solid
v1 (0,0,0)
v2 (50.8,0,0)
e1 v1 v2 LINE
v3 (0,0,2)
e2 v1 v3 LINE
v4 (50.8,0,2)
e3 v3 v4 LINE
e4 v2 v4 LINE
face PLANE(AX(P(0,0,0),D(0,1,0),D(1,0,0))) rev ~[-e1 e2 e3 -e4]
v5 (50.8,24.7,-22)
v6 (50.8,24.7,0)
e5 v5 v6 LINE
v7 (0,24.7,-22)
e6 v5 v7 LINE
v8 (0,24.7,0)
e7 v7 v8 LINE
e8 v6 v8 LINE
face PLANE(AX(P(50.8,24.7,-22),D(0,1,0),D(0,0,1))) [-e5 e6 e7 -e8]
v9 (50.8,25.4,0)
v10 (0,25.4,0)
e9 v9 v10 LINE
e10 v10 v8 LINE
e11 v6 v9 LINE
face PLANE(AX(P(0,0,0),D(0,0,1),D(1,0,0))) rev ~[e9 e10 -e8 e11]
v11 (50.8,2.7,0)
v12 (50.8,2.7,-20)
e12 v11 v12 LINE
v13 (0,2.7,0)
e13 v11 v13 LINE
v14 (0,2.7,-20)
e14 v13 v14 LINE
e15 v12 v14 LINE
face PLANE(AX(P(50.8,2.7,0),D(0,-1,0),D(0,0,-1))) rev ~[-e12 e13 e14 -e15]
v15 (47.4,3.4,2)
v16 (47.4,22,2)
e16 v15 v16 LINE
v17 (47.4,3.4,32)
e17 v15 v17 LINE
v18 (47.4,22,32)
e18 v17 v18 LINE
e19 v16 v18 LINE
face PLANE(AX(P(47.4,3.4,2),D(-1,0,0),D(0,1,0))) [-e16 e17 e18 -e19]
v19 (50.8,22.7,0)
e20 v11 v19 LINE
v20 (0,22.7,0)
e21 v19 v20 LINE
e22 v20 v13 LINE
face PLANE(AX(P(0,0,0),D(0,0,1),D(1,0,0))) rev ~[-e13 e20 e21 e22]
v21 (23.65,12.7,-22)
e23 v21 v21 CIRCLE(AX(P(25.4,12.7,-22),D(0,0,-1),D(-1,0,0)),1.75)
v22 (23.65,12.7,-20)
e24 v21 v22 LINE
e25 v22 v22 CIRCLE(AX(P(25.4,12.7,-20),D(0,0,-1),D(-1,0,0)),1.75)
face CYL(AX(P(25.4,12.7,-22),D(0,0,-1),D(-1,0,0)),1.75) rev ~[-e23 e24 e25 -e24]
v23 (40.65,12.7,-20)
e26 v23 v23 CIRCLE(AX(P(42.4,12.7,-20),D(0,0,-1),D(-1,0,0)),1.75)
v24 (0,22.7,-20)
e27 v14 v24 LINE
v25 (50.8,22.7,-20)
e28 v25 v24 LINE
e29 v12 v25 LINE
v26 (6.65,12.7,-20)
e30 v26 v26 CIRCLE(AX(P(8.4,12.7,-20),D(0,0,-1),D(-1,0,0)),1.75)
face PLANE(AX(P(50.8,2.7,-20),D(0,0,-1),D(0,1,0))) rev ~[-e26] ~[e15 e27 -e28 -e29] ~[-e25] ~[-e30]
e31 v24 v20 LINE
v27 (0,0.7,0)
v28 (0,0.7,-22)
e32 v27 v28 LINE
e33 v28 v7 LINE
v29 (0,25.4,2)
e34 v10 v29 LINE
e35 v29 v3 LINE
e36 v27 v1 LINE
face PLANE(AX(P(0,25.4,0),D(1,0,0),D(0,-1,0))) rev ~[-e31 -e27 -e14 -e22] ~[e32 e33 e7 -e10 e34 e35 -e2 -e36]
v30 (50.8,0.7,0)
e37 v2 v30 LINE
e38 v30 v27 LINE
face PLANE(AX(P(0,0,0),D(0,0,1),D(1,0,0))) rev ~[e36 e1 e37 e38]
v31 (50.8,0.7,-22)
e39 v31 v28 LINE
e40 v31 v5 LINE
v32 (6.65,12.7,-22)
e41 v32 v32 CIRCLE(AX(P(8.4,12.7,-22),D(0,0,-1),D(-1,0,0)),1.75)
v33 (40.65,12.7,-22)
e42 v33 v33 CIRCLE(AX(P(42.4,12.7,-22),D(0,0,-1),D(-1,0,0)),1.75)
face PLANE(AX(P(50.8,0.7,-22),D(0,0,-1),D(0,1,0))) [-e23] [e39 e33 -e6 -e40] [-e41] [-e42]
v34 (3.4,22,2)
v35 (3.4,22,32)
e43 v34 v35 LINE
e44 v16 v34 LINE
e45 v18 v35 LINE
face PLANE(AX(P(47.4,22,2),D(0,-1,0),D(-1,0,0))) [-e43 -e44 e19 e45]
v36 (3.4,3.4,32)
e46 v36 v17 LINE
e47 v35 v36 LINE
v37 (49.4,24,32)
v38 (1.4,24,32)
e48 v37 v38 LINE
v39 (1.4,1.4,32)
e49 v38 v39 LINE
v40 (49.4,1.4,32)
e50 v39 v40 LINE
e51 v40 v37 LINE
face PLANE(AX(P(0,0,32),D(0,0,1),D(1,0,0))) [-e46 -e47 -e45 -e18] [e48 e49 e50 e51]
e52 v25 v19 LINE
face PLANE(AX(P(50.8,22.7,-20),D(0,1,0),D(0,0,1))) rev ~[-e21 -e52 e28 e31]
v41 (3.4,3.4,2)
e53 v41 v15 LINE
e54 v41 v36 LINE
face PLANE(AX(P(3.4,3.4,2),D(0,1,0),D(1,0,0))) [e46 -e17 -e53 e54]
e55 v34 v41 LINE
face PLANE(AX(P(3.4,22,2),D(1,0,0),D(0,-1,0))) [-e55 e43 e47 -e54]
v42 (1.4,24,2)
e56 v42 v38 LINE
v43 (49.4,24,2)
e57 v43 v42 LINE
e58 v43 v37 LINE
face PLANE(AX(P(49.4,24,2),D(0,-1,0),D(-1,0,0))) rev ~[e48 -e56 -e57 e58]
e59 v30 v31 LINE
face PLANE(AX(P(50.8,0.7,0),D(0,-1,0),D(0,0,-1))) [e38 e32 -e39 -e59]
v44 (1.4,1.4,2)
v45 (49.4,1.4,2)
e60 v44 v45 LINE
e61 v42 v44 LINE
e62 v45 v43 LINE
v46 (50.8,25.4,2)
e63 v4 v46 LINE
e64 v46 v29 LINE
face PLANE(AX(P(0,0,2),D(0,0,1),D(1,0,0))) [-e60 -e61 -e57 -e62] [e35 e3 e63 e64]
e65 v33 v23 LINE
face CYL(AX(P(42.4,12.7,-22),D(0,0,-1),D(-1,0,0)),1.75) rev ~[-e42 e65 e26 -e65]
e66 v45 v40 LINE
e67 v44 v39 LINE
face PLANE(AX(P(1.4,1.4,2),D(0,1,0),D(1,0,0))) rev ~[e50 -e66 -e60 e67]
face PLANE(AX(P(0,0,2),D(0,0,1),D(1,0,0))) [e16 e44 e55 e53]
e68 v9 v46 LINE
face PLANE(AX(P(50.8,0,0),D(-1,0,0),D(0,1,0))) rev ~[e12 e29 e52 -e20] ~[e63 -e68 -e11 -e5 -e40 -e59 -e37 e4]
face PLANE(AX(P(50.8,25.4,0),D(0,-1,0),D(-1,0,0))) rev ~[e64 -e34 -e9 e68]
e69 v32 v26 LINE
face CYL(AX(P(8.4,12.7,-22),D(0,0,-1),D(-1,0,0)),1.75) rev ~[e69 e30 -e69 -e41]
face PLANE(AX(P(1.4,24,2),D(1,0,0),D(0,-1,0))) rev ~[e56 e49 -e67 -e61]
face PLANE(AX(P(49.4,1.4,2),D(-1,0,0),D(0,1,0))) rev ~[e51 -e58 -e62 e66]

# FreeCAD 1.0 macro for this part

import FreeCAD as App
import Part
import Sketcher
from FreeCAD import Vector
Q = App.Units.Quantity


def add_polygon(sketch, points):
    """Adds a closed chain of lines whose ends are joined by coincident constraints."""
    first, n = sketch.GeometryCount, len(points)
    for a, b in zip(points, points[1:] + points[:1]):
        sketch.addGeometry(Part.LineSegment(App.Vector(*a, 0), App.Vector(*b, 0)), False)
    for i in range(n):
        sketch.addConstraint(Sketcher.Constraint("Coincident", first + i, 2, first + (i + 1) % n, 1))

doc = App.newDocument("Part")
body = doc.addObject("PartDesign::Body", "Body")

sketch1 = body.newObject("Sketcher::SketchObject", "Sketch")
sketch1.AttachmentSupport = (doc.getObject("XY_Plane"), [""])
sketch1.MapMode = "FlatFace"
add_polygon(sketch1, [(0, 25.4), (0, 0), (50.8, 0), (50.8, 25.4)])
sketch1.addConstraint(Sketcher.Constraint("Vertical", 0))
sketch1.addConstraint(Sketcher.Constraint("Horizontal", 1))
sketch1.addConstraint(Sketcher.Constraint("Vertical", 2))
sketch1.addConstraint(Sketcher.Constraint("Horizontal", 3))
sketch1.addConstraint(Sketcher.Constraint("Coincident", 0, 2, -1, 1))
sketch1.addConstraint(Sketcher.Constraint("DistanceX", 1, 1, 1, 2, Q("50.8 mm")))
sketch1.addConstraint(Sketcher.Constraint("DistanceY", 0, 2, 0, 1, Q("25.4 mm")))
pad1 = body.newObject("PartDesign::Pad", "Pad")
pad1.Profile = sketch1
pad1.Length = 2

sketch2 = body.newObject("Sketcher::SketchObject", "Sketch001")
sketch2.AttachmentSupport = (doc.getObject("XY_Plane"), [""])
sketch2.MapMode = "FlatFace"
sketch2.AttachmentOffset = App.Placement(Vector(0, 0, 2), App.Rotation())
add_polygon(sketch2, [(1.4, 24), (1.4, 1.4), (49.4, 1.4), (49.4, 24)])
add_polygon(sketch2, [(47.4, 3.4), (3.4, 3.4), (3.4, 22), (47.4, 22)])
sketch2.addConstraint(Sketcher.Constraint("Vertical", 0))
sketch2.addConstraint(Sketcher.Constraint("Horizontal", 1))
sketch2.addConstraint(Sketcher.Constraint("Vertical", 2))
sketch2.addConstraint(Sketcher.Constraint("Horizontal", 3))
sketch2.addConstraint(Sketcher.Constraint("Horizontal", 4))
sketch2.addConstraint(Sketcher.Constraint("Vertical", 5))
sketch2.addConstraint(Sketcher.Constraint("Horizontal", 6))
sketch2.addConstraint(Sketcher.Constraint("Vertical", 7))
sketch2.addConstraint(Sketcher.Constraint("DistanceX", 0, 2, 4, 2, Q("2 mm")))
sketch2.addConstraint(Sketcher.Constraint("DistanceY", 0, 2, 4, 2, Q("2 mm")))
sketch2.addConstraint(Sketcher.Constraint("DistanceY", 5, 2, 3, 2, Q("2 mm")))
sketch2.addConstraint(Sketcher.Constraint("DistanceX", 6, 2, 2, 2, Q("2 mm")))
sketch2.addConstraint(Sketcher.Constraint("DistanceX", -1, 1, 0, 2, Q("1.4 mm")))
sketch2.addConstraint(Sketcher.Constraint("DistanceY", -1, 1, 0, 2, Q("1.4 mm")))
sketch2.addConstraint(Sketcher.Constraint("DistanceX", 1, 1, 1, 2, Q("48 mm")))
sketch2.addConstraint(Sketcher.Constraint("DistanceY", 0, 2, 0, 1, Q("22.6 mm")))
pad2 = body.newObject("PartDesign::Pad", "Pad001")
pad2.Profile = sketch2
pad2.Length = 30

sketch3 = body.newObject("Sketcher::SketchObject", "Sketch002")
sketch3.AttachmentSupport = (doc.getObject("YZ_Plane"), [""])
sketch3.MapMode = "FlatFace"
sketch3.AttachmentOffset = App.Placement(Vector(0, 0, 50.8), App.Rotation())
add_polygon(sketch3, [(2.7, 0), (0.7, 0), (0.7, -22), (24.7, -22), (24.7, 0), (22.7, 0), (22.7, -20), (2.7, -20)])
sketch3.addConstraint(Sketcher.Constraint("Horizontal", 0))
sketch3.addConstraint(Sketcher.Constraint("Vertical", 1))
sketch3.addConstraint(Sketcher.Constraint("Horizontal", 2))
sketch3.addConstraint(Sketcher.Constraint("Vertical", 3))
sketch3.addConstraint(Sketcher.Constraint("Horizontal", 4))
sketch3.addConstraint(Sketcher.Constraint("Vertical", 5))
sketch3.addConstraint(Sketcher.Constraint("Horizontal", 6))
sketch3.addConstraint(Sketcher.Constraint("Vertical", 7))
sketch3.addConstraint(Sketcher.Constraint("PointOnObject", 0, 2, -1))
sketch3.addConstraint(Sketcher.Constraint("PointOnObject", 3, 2, -1))
sketch3.addConstraint(Sketcher.Constraint("Equal", 0, 4))
sketch3.addConstraint(Sketcher.Constraint("Equal", 6, 5))
sketch3.addConstraint(Sketcher.Constraint("DistanceX", 0, 2, 0, 1, Q("2 mm")))
sketch3.addConstraint(Sketcher.Constraint("DistanceX", 2, 1, 2, 2, Q("24 mm")))
sketch3.addConstraint(Sketcher.Constraint("DistanceY", 1, 2, 1, 1, Q("22 mm")))
sketch3.addConstraint(Sketcher.Constraint("DistanceX", -1, 1, 0, 2, Q("0.7 mm")))
pad3 = body.newObject("PartDesign::Pad", "Pad002")
pad3.Profile = sketch3
pad3.Length = 50.8
pad3.Reversed = True

sketch4 = body.newObject("Sketcher::SketchObject", "Sketch003")
sketch4.AttachmentSupport = (doc.getObject("XY_Plane"), [""])
sketch4.MapMode = "FlatFace"
sketch4.AttachmentOffset = App.Placement(Vector(0, 0, -22), App.Rotation())
sketch4.addGeometry(Part.Circle(Vector(42.4, 12.7, 0), Vector(0, 0, 1), 1.75), False)
sketch4.addGeometry(Part.Circle(Vector(25.4, 12.7, 0), Vector(0, 0, 1), 1.75), False)
sketch4.addGeometry(Part.Circle(Vector(8.4, 12.7, 0), Vector(0, 0, 1), 1.75), False)
sketch4.addConstraint(Sketcher.Constraint("Equal", 0, 1))
sketch4.addConstraint(Sketcher.Constraint("Equal", 1, 2))
sketch4.addConstraint(Sketcher.Constraint("Horizontal", 0, 3, 1, 3))
sketch4.addConstraint(Sketcher.Constraint("Horizontal", 1, 3, 2, 3))
sketch4.addConstraint(Sketcher.Constraint("Diameter", 0, Q("3.5 mm")))
sketch4.addConstraint(Sketcher.Constraint("DistanceX", 1, 3, 0, 3, Q("17 mm")))
sketch4.addConstraint(Sketcher.Constraint("DistanceX", 2, 3, 1, 3, Q("17 mm")))
sketch4.addConstraint(Sketcher.Constraint("DistanceX", -1, 1, 1, 3, Q("25.4 mm")))
sketch4.addConstraint(Sketcher.Constraint("DistanceY", -1, 1, 0, 3, Q("12.7 mm")))
pocket1 = body.newObject("PartDesign::Pocket", "Pocket")
pocket1.Profile = sketch4
pocket1.Length = 2
pocket1.Reversed = True

doc.recompute()
